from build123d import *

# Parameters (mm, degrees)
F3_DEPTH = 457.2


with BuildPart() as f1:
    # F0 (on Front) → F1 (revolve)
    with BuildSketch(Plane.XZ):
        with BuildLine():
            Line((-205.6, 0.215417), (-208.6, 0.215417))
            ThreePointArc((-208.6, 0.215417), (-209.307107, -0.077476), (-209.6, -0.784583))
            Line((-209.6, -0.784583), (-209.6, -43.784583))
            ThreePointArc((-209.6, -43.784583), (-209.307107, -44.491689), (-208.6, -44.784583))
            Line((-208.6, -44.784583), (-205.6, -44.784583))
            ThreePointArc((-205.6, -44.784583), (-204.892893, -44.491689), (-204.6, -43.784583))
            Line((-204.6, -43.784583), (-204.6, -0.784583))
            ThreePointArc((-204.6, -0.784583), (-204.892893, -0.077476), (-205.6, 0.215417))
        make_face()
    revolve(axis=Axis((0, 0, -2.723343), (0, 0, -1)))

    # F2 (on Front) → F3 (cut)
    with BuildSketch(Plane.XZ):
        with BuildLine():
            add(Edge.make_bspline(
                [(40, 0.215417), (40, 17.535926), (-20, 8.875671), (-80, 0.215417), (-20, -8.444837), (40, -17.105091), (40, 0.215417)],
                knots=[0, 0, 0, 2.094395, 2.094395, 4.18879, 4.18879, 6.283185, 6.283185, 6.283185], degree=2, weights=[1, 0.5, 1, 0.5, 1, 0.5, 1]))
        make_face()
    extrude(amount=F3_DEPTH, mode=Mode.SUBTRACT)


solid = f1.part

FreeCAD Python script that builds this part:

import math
import FreeCAD as App
import Part
import Sketcher
Q = App.Units.Quantity

doc = App.newDocument("Part")
params = doc.addObject("Spreadsheet::Sheet", "Params")
for row, (alias, value) in enumerate([
    ("sketch1_radius", "0.999999 mm"),
    ("sketch1_width", "3 mm"),
    ("sketch1_height", "43 mm"),
    ("revolution_angle", "360 deg"),
    ("pocket1_length", "457.2 mm"),
], start=1):
    params.set(f"A{row}", alias)
    params.set(f"B{row}", "=" + value)
    params.setAlias(f"B{row}", alias)

body = doc.addObject("PartDesign::Body", "Body")

# Sketch on XZ plane
sketch1 = body.newObject("Sketcher::SketchObject", "Sketch")
sketch1.AttachmentSupport = (doc.getObject("XZ_Plane"), [""])
sketch1.MapMode = "FlatFace"
sketch1.addGeometry([
    Part.LineSegment(App.Vector(-205.6, 0.2, 0), App.Vector(-208.6, 0.2, 0)),  # 0
    Part.ArcOfCircle(Part.Circle(App.Vector(-208.6, -0.8, 0), App.Vector(0, 0, 1), 1), math.radians(90), math.radians(180)),  # 1
    Part.LineSegment(App.Vector(-209.6, -0.8, 0), App.Vector(-209.6, -43.8, 0)),  # 2
    Part.ArcOfCircle(Part.Circle(App.Vector(-208.6, -43.8, 0), App.Vector(0, 0, 1), 1), math.radians(-180), math.radians(-90)),  # 3
    Part.LineSegment(App.Vector(-208.6, -44.8, 0), App.Vector(-205.6, -44.8, 0)),  # 4
    Part.ArcOfCircle(Part.Circle(App.Vector(-205.6, -43.8, 0), App.Vector(0, 0, 1), 1), math.radians(-90), math.radians(0)),  # 5
    Part.LineSegment(App.Vector(-204.6, -43.8, 0), App.Vector(-204.6, -0.8, 0)),  # 6
    Part.ArcOfCircle(Part.Circle(App.Vector(-205.6, -0.8, 0), App.Vector(0, 0, 1), 1), math.radians(0), math.radians(90)),  # 7
], False)
sketch1.addConstraint([
    Sketcher.Constraint("Tangent", 0, 2, 1, 1),
    Sketcher.Constraint("Tangent", 1, 2, 2, 1),
    Sketcher.Constraint("Tangent", 2, 2, 3, 1),
    Sketcher.Constraint("Tangent", 3, 2, 4, 1),
    Sketcher.Constraint("Tangent", 4, 2, 5, 1),
    Sketcher.Constraint("Tangent", 5, 2, 6, 1),
    Sketcher.Constraint("Tangent", 6, 2, 7, 1),
    Sketcher.Constraint("Tangent", 7, 2, 0, 1),
    Sketcher.Constraint("Horizontal", 0),
    Sketcher.Constraint("Vertical", 2),
    Sketcher.Constraint("Horizontal", 4),
    Sketcher.Constraint("Vertical", 6),
    Sketcher.Constraint("Equal", 1, 3),
    Sketcher.Constraint("Equal", 3, 5),
    Sketcher.Constraint("Equal", 5, 7),
    Sketcher.Constraint("Radius", 1, Q("0.999999 mm")),
    Sketcher.Constraint("DistanceX", 0, 2, 0, 1, Q("3 mm")),
    Sketcher.Constraint("DistanceY", 2, 2, 2, 1, Q("43 mm")),
    Sketcher.Constraint("DistanceX", 1, 3, -1, 1, Q("208.600001 mm")),
    Sketcher.Constraint("DistanceY", 1, 3, -1, 1, Q("0.784582 mm")),
])
sketch1.setExpression("Constraints[15]", "Params.sketch1_radius")
sketch1.setExpression("Constraints[16]", "Params.sketch1_width")
sketch1.setExpression("Constraints[17]", "Params.sketch1_height")
revolution = body.newObject("PartDesign::Revolution", "Revolution")
revolution.Profile = sketch1
revolution.ReferenceAxis = (sketch1, ["V_Axis"])
revolution.setExpression("Angle", "Params.revolution_angle")

# Sketch on XZ plane
sketch2 = body.newObject("Sketcher::SketchObject", "Sketch001")
sketch2.AttachmentSupport = (doc.getObject("XZ_Plane"), [""])
sketch2.MapMode = "FlatFace"
sketch2.addGeometry(Part.BSplineCurve([App.Vector(40, 0.215417, 0), App.Vector(40, 17.535926, 0), App.Vector(-20, 8.875671, 0), App.Vector(-80, 0.215417, 0), App.Vector(-20, -8.444837, 0), App.Vector(40, -17.105091, 0), App.Vector(40, 0.215417, 0)], [3, 2, 2, 3], [0, 2.094395, 4.18879, 6.283185], False, 2, [1, 0.5, 1, 0.5, 1, 0.5, 1], False), False)
sketch2.addConstraint(Sketcher.Constraint("Block", 0))
pocket1 = body.newObject("PartDesign::Pocket", "Pocket")
pocket1.Profile = sketch2
pocket1.setExpression("Length", "Params.pocket1_length")
pocket1.Reversed = True

doc.recompute()
